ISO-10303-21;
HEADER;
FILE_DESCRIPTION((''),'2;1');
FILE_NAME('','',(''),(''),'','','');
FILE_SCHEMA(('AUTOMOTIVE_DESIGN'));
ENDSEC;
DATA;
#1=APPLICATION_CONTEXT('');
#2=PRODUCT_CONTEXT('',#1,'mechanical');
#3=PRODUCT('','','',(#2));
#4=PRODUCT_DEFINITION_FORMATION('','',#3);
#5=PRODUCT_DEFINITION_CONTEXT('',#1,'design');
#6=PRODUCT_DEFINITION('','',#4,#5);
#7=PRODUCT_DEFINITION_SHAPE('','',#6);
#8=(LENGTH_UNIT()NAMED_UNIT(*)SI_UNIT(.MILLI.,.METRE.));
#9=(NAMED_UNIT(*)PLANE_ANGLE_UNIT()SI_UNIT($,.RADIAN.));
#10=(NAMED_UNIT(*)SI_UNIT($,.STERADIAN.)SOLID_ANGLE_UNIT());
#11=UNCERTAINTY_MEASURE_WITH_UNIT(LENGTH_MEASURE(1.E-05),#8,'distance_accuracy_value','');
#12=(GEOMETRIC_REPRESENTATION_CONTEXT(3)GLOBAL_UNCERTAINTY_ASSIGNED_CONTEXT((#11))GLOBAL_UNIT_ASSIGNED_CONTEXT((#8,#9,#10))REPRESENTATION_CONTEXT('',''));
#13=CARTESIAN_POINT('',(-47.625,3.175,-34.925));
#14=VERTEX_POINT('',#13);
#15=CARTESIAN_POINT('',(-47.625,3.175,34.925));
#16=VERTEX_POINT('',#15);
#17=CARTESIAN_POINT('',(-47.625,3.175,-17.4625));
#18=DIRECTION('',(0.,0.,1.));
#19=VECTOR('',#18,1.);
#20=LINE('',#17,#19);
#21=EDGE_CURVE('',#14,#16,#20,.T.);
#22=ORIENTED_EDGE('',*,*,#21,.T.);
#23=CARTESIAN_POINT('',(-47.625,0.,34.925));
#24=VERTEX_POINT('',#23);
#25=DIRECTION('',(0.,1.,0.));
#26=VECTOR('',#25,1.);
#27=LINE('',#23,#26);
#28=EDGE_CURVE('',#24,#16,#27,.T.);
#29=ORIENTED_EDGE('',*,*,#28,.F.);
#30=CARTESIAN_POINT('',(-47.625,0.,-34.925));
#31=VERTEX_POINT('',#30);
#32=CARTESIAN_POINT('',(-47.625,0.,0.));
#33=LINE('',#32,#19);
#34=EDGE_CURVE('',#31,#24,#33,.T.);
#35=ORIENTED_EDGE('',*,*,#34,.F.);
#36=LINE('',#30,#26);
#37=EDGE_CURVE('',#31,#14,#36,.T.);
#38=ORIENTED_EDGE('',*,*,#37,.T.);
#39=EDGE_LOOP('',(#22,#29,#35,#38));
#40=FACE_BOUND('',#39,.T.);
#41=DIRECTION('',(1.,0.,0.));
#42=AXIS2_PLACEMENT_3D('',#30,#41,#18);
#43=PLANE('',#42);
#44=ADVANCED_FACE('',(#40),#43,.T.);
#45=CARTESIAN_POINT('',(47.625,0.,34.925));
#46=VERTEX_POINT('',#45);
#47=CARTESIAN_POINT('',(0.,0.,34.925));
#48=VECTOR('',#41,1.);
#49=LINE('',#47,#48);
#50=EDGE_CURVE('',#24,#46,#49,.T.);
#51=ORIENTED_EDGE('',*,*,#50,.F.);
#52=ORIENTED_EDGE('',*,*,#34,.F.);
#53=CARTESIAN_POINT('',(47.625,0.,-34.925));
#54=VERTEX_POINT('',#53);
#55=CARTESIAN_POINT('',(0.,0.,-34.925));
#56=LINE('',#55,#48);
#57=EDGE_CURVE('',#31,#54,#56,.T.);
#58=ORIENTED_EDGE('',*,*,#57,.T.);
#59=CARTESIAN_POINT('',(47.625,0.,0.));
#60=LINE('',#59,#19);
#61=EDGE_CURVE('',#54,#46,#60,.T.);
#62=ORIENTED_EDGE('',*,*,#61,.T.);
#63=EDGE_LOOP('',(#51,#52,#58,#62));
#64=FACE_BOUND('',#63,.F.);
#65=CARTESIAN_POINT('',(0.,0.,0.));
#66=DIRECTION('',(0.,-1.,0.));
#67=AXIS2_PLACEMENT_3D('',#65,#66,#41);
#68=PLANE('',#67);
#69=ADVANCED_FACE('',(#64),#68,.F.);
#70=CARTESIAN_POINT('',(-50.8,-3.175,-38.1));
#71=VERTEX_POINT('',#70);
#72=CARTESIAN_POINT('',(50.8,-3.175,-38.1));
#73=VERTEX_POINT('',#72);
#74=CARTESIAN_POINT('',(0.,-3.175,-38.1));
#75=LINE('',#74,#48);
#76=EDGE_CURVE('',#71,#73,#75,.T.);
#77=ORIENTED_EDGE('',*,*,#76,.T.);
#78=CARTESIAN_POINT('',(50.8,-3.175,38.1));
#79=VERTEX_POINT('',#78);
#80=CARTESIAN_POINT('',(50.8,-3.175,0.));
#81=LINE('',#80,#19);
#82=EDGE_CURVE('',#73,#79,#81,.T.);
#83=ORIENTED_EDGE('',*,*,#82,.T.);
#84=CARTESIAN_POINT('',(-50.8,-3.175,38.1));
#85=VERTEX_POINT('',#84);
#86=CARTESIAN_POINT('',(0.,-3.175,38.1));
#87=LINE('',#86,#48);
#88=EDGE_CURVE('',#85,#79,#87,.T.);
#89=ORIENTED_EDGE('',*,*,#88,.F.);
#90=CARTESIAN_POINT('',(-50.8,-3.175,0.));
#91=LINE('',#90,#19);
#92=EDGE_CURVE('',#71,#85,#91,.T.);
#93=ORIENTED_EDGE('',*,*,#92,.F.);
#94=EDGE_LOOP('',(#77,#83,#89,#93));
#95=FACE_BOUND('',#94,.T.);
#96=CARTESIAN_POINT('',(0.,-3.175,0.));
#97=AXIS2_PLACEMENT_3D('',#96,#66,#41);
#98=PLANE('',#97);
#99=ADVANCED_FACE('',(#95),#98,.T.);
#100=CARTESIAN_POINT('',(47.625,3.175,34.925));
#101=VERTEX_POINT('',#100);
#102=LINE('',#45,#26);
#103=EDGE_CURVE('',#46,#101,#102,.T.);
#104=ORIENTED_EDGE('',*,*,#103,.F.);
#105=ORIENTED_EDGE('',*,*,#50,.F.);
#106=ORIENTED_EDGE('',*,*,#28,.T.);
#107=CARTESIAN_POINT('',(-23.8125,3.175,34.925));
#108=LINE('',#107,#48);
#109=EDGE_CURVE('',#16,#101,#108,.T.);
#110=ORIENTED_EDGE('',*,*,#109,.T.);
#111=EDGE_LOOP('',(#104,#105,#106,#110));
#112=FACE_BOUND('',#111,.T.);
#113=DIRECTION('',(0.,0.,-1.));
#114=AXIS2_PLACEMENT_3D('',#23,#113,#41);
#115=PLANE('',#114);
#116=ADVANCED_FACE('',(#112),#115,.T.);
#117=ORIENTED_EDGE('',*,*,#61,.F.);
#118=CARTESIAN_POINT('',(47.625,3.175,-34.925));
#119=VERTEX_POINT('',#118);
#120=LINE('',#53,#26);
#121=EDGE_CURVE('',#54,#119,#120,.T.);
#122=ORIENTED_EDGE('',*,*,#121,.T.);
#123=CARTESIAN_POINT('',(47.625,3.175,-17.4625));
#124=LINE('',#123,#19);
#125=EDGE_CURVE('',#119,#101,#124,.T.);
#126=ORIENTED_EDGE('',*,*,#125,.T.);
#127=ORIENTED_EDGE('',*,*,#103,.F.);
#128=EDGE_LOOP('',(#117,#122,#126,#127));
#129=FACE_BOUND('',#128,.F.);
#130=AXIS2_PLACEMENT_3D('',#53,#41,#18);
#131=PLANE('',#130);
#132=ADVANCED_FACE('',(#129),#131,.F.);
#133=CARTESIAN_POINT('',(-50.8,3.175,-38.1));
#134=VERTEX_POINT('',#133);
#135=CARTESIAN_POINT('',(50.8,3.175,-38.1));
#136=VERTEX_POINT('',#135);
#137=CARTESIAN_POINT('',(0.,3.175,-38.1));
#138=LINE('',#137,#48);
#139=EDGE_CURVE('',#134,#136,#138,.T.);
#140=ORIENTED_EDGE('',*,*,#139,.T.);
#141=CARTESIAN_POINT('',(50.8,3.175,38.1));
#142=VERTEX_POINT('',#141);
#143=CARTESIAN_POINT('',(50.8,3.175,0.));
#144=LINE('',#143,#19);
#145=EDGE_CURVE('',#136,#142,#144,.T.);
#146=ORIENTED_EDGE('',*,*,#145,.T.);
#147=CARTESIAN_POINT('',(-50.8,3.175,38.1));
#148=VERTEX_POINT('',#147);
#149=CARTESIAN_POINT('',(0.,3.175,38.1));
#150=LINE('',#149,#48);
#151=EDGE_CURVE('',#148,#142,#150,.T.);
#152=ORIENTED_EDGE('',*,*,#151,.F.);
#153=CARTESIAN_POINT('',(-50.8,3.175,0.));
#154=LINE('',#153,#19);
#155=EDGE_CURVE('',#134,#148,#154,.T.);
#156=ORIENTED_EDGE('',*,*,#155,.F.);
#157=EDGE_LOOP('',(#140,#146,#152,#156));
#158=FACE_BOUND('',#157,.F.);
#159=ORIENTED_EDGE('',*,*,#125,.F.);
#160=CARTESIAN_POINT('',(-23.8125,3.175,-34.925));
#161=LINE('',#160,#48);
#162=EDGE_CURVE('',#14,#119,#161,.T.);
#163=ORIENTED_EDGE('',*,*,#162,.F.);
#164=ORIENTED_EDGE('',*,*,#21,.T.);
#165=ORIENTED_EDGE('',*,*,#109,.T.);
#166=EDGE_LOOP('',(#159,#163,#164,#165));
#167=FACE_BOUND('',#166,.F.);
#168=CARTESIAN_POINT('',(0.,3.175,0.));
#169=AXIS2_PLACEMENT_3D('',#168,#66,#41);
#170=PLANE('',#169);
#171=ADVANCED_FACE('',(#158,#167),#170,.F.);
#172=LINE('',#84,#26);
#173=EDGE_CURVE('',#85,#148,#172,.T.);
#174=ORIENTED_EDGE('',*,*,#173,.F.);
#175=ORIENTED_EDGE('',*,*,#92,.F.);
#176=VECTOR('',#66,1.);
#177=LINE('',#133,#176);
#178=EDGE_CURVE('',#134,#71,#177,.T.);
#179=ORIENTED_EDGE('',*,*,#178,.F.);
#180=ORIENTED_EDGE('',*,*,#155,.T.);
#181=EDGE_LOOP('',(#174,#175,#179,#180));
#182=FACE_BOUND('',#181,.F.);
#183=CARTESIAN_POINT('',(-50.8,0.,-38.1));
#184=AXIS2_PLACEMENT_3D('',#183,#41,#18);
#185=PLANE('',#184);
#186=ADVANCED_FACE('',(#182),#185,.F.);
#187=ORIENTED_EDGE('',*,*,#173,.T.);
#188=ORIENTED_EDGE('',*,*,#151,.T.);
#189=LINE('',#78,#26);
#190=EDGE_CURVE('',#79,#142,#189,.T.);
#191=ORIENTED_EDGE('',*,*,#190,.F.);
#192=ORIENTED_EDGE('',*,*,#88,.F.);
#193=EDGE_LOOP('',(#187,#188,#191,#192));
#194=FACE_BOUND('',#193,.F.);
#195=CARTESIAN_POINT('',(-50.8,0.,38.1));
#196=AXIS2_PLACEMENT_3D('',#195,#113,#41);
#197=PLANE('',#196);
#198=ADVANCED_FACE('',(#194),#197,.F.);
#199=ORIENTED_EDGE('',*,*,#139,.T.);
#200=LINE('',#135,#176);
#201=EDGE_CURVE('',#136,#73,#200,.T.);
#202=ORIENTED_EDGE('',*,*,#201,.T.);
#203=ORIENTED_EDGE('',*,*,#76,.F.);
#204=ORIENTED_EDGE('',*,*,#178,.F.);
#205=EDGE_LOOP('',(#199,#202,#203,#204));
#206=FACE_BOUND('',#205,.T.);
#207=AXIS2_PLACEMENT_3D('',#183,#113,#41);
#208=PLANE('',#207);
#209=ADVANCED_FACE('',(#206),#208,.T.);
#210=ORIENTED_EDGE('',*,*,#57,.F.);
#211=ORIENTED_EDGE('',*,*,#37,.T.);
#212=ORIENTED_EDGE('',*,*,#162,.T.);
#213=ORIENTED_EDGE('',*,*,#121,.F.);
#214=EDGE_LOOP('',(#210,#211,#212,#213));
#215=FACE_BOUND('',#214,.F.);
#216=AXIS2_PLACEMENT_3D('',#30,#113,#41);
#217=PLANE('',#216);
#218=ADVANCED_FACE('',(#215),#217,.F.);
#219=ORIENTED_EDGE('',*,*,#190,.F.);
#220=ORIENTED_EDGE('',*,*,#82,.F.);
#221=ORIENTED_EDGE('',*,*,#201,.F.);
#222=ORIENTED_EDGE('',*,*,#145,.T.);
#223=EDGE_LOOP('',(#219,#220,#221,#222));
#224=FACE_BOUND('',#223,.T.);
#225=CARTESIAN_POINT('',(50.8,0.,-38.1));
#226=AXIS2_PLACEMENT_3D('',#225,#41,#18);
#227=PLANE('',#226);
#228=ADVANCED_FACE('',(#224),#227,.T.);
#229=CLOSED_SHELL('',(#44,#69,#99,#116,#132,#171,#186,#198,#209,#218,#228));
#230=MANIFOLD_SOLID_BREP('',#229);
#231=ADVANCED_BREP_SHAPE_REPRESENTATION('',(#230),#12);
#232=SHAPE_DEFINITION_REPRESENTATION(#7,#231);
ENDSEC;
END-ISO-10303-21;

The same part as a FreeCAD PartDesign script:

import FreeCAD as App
import Part
import Sketcher
from FreeCAD import Vector
Q = App.Units.Quantity

doc = App.newDocument("Part")
params = doc.addObject("Spreadsheet::Sheet", "Params")
for row, (alias, value) in enumerate([
    ("sketch1_width", "4 in"),
    ("sketch1_height", "3 in"),
    ("pad1_length", "0.25 in"),
    ("sketch2_width", "3.75 in"),
    ("sketch2_height", "2.75 in"),
    ("pocket1_length", "4.43 in"),
], start=1):
    params.set(f"A{row}", alias)
    params.set(f"B{row}", "=" + value)
    params.setAlias(f"B{row}", alias)

body = doc.addObject("PartDesign::Body", "Body")

# Sketch on XZ plane
sketch1 = body.newObject("Sketcher::SketchObject", "Sketch")
sketch1.AttachmentSupport = (doc.getObject("XZ_Plane"), [""])
sketch1.MapMode = "FlatFace"
sketch1.addGeometry(Part.LineSegment(Vector(-51, 38, 0), Vector(-51, -38, 0)), False)
sketch1.addGeometry(Part.LineSegment(Vector(-51, -38, 0), Vector(51, -38, 0)), False)
sketch1.addGeometry(Part.LineSegment(Vector(51, -38, 0), Vector(51, 38, 0)), False)
sketch1.addGeometry(Part.LineSegment(Vector(51, 38, 0), Vector(-51, 38, 0)), False)
sketch1.addConstraint(Sketcher.Constraint("Coincident", 0, 2, 1, 1))
sketch1.addConstraint(Sketcher.Constraint("Coincident", 1, 2, 2, 1))
sketch1.addConstraint(Sketcher.Constraint("Coincident", 2, 2, 3, 1))
sketch1.addConstraint(Sketcher.Constraint("Coincident", 3, 2, 0, 1))
sketch1.addConstraint(Sketcher.Constraint("Vertical", 0))
sketch1.addConstraint(Sketcher.Constraint("Horizontal", 1))
sketch1.addConstraint(Sketcher.Constraint("Vertical", 2))
sketch1.addConstraint(Sketcher.Constraint("Horizontal", 3))
sketch1.addConstraint(Sketcher.Constraint("Symmetric", 0, 2, 2, 2, -1, 1))
sketch1.addConstraint(Sketcher.Constraint("DistanceX", 1, 1, 1, 2, Q("4 in")))
sketch1.addConstraint(Sketcher.Constraint("DistanceY", 0, 2, 0, 1, Q("3 in")))
sketch1.setExpression("Constraints[9]", "Params.sketch1_width")
sketch1.setExpression("Constraints[10]", "Params.sketch1_height")
pad1 = body.newObject("PartDesign::Pad", "Pad")
pad1.Profile = sketch1
pad1.setExpression("Length", "Params.pad1_length")
pad1.Midplane = True

# Sketch on XZ plane
sketch2 = body.newObject("Sketcher::SketchObject", "Sketch001")
sketch2.AttachmentSupport = (doc.getObject("XZ_Plane"), [""])
sketch2.MapMode = "FlatFace"
sketch2.addGeometry(Part.LineSegment(Vector(-48, 35, 0), Vector(-48, -35, 0)), False)
sketch2.addGeometry(Part.LineSegment(Vector(-48, -35, 0), Vector(48, -35, 0)), False)
sketch2.addGeometry(Part.LineSegment(Vector(48, -35, 0), Vector(48, 35, 0)), False)
sketch2.addGeometry(Part.LineSegment(Vector(48, 35, 0), Vector(-48, 35, 0)), False)
sketch2.addConstraint(Sketcher.Constraint("Coincident", 0, 2, 1, 1))
sketch2.addConstraint(Sketcher.Constraint("Coincident", 1, 2, 2, 1))
sketch2.addConstraint(Sketcher.Constraint("Coincident", 2, 2, 3, 1))
sketch2.addConstraint(Sketcher.Constraint("Coincident", 3, 2, 0, 1))
sketch2.addConstraint(Sketcher.Constraint("Vertical", 0))
sketch2.addConstraint(Sketcher.Constraint("Horizontal", 1))
sketch2.addConstraint(Sketcher.Constraint("Vertical", 2))
sketch2.addConstraint(Sketcher.Constraint("Horizontal", 3))
sketch2.addConstraint(Sketcher.Constraint("Symmetric", 0, 2, 2, 2, -1, 1))
sketch2.addConstraint(Sketcher.Constraint("DistanceX", 1, 1, 1, 2, Q("3.75 in")))
sketch2.addConstraint(Sketcher.Constraint("DistanceY", 0, 2, 0, 1, Q("2.75 in")))
sketch2.setExpression("Constraints[9]", "Params.sketch2_width")
sketch2.setExpression("Constraints[10]", "Params.sketch2_height")
pocket1 = body.newObject("PartDesign::Pocket", "Pocket")
pocket1.Profile = sketch2
pocket1.setExpression("Length", "Params.pocket1_length")

doc.recompute()
